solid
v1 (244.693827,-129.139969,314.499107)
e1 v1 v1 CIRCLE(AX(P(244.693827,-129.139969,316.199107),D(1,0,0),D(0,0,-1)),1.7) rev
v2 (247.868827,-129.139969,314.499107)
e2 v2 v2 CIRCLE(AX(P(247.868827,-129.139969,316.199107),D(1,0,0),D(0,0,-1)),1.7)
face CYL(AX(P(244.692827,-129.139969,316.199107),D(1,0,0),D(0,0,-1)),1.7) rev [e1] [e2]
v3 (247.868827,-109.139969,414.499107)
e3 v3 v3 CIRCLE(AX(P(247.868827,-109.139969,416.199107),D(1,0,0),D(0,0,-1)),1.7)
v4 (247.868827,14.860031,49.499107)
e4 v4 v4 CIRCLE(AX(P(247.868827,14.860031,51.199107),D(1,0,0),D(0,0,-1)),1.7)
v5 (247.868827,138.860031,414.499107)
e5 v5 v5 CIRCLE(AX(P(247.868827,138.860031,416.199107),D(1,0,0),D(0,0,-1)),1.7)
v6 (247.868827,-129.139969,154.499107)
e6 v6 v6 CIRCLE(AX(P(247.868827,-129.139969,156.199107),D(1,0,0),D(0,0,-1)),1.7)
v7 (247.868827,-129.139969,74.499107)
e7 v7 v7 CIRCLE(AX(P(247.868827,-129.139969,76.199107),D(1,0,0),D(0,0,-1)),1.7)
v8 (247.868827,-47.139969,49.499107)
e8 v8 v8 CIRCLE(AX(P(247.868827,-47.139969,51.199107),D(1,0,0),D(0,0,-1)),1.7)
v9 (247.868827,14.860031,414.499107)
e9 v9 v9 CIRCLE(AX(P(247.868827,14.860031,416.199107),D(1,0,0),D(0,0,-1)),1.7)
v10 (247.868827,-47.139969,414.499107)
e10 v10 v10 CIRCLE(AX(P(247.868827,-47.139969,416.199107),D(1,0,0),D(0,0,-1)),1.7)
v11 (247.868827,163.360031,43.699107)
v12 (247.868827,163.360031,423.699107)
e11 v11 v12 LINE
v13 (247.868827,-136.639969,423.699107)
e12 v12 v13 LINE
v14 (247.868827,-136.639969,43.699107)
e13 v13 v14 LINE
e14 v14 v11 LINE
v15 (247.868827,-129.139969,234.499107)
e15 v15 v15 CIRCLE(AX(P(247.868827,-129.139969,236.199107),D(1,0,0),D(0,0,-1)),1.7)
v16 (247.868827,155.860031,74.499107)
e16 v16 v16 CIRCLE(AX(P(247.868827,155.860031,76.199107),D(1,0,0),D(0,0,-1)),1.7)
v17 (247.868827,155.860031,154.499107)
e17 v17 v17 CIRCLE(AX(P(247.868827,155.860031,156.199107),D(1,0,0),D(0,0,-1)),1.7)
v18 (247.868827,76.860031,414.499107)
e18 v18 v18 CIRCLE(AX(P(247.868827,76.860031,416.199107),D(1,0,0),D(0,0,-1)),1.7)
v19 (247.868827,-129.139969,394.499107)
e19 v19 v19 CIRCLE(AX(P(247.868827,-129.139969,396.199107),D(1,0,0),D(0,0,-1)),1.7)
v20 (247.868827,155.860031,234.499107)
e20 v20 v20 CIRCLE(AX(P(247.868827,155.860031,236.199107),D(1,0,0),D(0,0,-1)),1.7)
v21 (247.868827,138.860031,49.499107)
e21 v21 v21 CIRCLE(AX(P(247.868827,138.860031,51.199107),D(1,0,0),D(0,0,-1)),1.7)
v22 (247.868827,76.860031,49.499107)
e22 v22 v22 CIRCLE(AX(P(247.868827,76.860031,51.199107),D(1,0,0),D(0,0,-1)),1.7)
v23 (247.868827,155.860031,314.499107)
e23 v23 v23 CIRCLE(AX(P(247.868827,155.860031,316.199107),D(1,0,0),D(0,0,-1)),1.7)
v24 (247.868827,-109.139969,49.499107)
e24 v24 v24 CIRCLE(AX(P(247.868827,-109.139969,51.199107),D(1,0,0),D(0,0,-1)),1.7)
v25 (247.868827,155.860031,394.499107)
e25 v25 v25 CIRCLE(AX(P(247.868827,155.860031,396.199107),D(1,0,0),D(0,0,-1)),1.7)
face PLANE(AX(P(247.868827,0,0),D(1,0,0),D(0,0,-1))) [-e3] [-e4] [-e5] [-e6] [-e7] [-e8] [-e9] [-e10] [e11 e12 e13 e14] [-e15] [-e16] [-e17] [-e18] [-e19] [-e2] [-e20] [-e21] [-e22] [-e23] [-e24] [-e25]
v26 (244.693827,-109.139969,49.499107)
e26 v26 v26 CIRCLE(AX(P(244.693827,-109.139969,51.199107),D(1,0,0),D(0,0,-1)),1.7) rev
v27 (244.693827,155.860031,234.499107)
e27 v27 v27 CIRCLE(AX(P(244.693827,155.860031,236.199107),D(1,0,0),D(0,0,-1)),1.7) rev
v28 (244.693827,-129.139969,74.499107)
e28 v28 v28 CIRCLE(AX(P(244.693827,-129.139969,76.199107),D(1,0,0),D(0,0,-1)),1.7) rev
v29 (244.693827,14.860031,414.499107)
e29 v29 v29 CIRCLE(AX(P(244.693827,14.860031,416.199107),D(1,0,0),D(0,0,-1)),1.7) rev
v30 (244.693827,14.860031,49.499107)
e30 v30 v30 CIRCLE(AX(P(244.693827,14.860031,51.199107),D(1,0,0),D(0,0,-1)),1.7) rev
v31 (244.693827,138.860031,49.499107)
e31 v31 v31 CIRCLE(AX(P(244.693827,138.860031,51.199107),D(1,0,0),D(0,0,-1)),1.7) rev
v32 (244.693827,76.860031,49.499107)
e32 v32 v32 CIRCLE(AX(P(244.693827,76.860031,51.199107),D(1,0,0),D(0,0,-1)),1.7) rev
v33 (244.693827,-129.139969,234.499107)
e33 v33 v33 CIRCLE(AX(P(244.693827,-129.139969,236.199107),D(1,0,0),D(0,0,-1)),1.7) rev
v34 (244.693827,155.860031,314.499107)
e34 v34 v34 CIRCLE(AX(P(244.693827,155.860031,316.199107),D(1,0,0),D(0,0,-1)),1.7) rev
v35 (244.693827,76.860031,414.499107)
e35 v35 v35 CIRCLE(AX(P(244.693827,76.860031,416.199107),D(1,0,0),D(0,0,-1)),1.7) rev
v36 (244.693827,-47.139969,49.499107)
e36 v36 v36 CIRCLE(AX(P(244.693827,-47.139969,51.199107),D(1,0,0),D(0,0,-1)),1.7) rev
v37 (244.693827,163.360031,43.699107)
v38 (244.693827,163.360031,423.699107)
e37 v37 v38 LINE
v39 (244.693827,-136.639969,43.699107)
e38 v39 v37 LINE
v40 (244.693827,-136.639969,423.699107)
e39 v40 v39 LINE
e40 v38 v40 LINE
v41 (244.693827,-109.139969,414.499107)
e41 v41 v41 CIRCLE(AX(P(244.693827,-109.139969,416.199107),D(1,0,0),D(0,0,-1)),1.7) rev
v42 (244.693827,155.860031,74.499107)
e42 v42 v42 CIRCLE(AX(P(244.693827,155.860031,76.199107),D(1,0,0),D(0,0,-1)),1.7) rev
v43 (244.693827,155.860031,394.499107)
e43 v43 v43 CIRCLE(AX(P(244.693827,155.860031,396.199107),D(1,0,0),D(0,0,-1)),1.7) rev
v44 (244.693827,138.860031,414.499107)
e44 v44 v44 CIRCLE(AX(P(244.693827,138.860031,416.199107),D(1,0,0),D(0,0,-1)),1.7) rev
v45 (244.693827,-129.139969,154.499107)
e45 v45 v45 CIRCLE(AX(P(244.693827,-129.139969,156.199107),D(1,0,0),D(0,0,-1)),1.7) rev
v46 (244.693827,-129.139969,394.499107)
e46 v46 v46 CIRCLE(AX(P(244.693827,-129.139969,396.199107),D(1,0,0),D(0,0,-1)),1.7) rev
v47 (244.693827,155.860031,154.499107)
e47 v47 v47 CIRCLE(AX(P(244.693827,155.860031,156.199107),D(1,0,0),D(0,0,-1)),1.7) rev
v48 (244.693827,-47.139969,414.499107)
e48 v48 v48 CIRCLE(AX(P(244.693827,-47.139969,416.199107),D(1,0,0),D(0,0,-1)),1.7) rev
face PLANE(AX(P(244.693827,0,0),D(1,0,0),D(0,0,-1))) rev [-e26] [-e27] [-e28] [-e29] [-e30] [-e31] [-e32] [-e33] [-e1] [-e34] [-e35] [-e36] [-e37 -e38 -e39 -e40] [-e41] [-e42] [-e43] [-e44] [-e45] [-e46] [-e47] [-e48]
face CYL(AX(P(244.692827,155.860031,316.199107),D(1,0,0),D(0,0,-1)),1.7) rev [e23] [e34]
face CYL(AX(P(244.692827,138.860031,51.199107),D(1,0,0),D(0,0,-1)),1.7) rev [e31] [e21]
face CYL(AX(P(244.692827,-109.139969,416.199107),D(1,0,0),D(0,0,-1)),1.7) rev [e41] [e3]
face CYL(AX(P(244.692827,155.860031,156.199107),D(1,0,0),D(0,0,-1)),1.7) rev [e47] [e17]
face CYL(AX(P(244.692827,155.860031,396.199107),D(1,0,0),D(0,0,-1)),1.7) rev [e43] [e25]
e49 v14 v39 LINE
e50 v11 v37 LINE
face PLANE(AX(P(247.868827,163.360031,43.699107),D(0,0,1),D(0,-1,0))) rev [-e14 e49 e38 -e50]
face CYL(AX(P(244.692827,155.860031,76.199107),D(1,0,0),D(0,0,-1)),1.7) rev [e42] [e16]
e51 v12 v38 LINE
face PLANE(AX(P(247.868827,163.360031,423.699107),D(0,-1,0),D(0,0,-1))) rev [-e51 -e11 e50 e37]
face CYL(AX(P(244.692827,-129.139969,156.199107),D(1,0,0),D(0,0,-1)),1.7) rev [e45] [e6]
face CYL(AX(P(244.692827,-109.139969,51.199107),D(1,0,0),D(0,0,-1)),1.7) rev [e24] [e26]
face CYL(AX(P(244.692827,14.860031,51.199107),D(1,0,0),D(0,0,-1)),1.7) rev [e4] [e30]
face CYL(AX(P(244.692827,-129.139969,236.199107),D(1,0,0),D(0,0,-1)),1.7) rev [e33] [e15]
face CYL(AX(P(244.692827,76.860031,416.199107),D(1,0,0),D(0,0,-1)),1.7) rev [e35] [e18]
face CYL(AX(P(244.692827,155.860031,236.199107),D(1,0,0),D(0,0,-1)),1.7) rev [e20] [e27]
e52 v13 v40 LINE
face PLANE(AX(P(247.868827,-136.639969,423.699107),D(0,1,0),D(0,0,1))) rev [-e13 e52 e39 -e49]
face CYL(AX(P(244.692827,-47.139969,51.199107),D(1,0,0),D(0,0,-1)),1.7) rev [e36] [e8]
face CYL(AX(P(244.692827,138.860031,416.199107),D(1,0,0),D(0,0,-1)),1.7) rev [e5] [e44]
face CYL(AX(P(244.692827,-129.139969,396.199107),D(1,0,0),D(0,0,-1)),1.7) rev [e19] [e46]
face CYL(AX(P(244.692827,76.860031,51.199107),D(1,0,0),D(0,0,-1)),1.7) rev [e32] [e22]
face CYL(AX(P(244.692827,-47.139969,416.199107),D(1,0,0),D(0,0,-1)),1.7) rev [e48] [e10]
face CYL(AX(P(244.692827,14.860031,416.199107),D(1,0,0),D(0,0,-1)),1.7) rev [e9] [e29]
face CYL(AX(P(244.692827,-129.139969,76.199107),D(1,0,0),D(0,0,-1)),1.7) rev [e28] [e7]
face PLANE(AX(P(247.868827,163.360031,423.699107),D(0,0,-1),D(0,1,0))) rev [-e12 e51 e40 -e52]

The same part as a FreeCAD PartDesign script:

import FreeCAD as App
import Part
import Sketcher
Q = App.Units.Quantity

doc = App.newDocument("Part")
body = doc.addObject("PartDesign::Body", "Body")

# Sketch on YZ plane
sketch1 = body.newObject("Sketcher::SketchObject", "Sketch")
sketch1.AttachmentSupport = (doc.getObject("YZ_Plane"), [""])
sketch1.MapMode = "FlatFace"
sketch1.AttachmentOffset = App.Placement(App.Vector(0, 0, 244.693827), App.Rotation())
sketch1.addGeometry([
    Part.LineSegment(App.Vector(163.360031, 423.699107, 0), App.Vector(-136.639969, 423.699107, 0)),
    Part.LineSegment(App.Vector(-136.639969, 423.699107, 0), App.Vector(-136.639969, 43.699107, 0)),
    Part.LineSegment(App.Vector(-136.639969, 43.699107, 0), App.Vector(163.360031, 43.699107, 0)),
    Part.LineSegment(App.Vector(163.360031, 43.699107, 0), App.Vector(163.360031, 423.699107, 0)),
], False)
sketch1.addConstraint([
    Sketcher.Constraint("Coincident", 0, 2, 1, 1),
    Sketcher.Constraint("Coincident", 1, 2, 2, 1),
    Sketcher.Constraint("Coincident", 2, 2, 3, 1),
    Sketcher.Constraint("Coincident", 3, 2, 0, 1),
    Sketcher.Constraint("Horizontal", 0),
    Sketcher.Constraint("Vertical", 1),
    Sketcher.Constraint("Horizontal", 2),
    Sketcher.Constraint("Vertical", 3),
    Sketcher.Constraint("DistanceX", 0, 2, 0, 1, Q("300 mm")),
    Sketcher.Constraint("DistanceY", 1, 2, 1, 1, Q("380 mm")),
    Sketcher.Constraint("DistanceX", 0, 2, -1, 1, Q("136.639969 mm")),
    Sketcher.Constraint("DistanceY", -1, 1, 0, 2, Q("423.699107 mm")),
])
pad1 = body.newObject("PartDesign::Pad", "Pad")
pad1.Profile = sketch1
pad1.Length = 3.175

# Sketch on YZ plane
sketch2 = body.newObject("Sketcher::SketchObject", "Sketch001")
sketch2.AttachmentSupport = (doc.getObject("YZ_Plane"), [""])
sketch2.MapMode = "FlatFace"
sketch2.AttachmentOffset = App.Placement(App.Vector(0, 0, 247.868827), App.Rotation())
sketch2.addGeometry(Part.Circle(App.Vector(155.860031, 396.199107, 0), App.Vector(0, 0, 1), 1.7), False)
sketch2.addConstraint([
    Sketcher.Constraint("Diameter", 0, Q("3.4 mm")),
    Sketcher.Constraint("DistanceX", -1, 1, 0, 3, Q("155.860031 mm")),
    Sketcher.Constraint("DistanceY", -1, 1, 0, 3, Q("396.199107 mm")),
])
pocket1 = body.newObject("PartDesign::Pocket", "Pocket")
pocket1.Profile = sketch2
pocket1.Type = "UpToFirst"

# Sketch on YZ plane
sketch3 = body.newObject("Sketcher::SketchObject", "Sketch002")
sketch3.AttachmentSupport = (doc.getObject("YZ_Plane"), [""])
sketch3.MapMode = "FlatFace"
sketch3.AttachmentOffset = App.Placement(App.Vector(0, 0, 247.868827), App.Rotation())
sketch3.addGeometry(Part.Circle(App.Vector(-129.139969, 396.199107, 0), App.Vector(0, 0, 1), 1.7), False)
sketch3.addConstraint([
    Sketcher.Constraint("Diameter", 0, Q("3.4 mm")),
    Sketcher.Constraint("DistanceX", 0, 3, -1, 1, Q("129.139969 mm")),
    Sketcher.Constraint("DistanceY", -1, 1, 0, 3, Q("396.199107 mm")),
])
pocket2 = body.newObject("PartDesign::Pocket", "Pocket001")
pocket2.Profile = sketch3
pocket2.Type = "UpToFirst"

# Sketch on YZ plane
sketch4 = body.newObject("Sketcher::SketchObject", "Sketch003")
sketch4.AttachmentSupport = (doc.getObject("YZ_Plane"), [""])
sketch4.MapMode = "FlatFace"
sketch4.AttachmentOffset = App.Placement(App.Vector(0, 0, 247.868827), App.Rotation())
sketch4.addGeometry(Part.Circle(App.Vector(155.860031, 316.199107, 0), App.Vector(0, 0, 1), 1.7), False)
sketch4.addConstraint([
    Sketcher.Constraint("Diameter", 0, Q("3.4 mm")),
    Sketcher.Constraint("DistanceX", -1, 1, 0, 3, Q("155.860031 mm")),
    Sketcher.Constraint("DistanceY", -1, 1, 0, 3, Q("316.199107 mm")),
])
pocket3 = body.newObject("PartDesign::Pocket", "Pocket002")
pocket3.Profile = sketch4
pocket3.Type = "UpToFirst"

# Sketch on YZ plane
sketch5 = body.newObject("Sketcher::SketchObject", "Sketch004")
sketch5.AttachmentSupport = (doc.getObject("YZ_Plane"), [""])
sketch5.MapMode = "FlatFace"
sketch5.AttachmentOffset = App.Placement(App.Vector(0, 0, 247.868827), App.Rotation())
sketch5.addGeometry(Part.Circle(App.Vector(-129.139969, 316.199107, 0), App.Vector(0, 0, 1), 1.7), False)
sketch5.addConstraint([
    Sketcher.Constraint("Diameter", 0, Q("3.4 mm")),
    Sketcher.Constraint("DistanceX", 0, 3, -1, 1, Q("129.139969 mm")),
    Sketcher.Constraint("DistanceY", -1, 1, 0, 3, Q("316.199107 mm")),
])
pocket4 = body.newObject("PartDesign::Pocket", "Pocket003")
pocket4.Profile = sketch5
pocket4.Type = "UpToFirst"

# Sketch on YZ plane
sketch6 = body.newObject("Sketcher::SketchObject", "Sketch005")
sketch6.AttachmentSupport = (doc.getObject("YZ_Plane"), [""])
sketch6.MapMode = "FlatFace"
sketch6.AttachmentOffset = App.Placement(App.Vector(0, 0, 247.868827), App.Rotation())
sketch6.addGeometry(Part.Circle(App.Vector(155.860031, 236.199107, 0), App.Vector(0, 0, 1), 1.7), False)
sketch6.addConstraint([
    Sketcher.Constraint("Diameter", 0, Q("3.4 mm")),
    Sketcher.Constraint("DistanceX", -1, 1, 0, 3, Q("155.860031 mm")),
    Sketcher.Constraint("DistanceY", -1, 1, 0, 3, Q("236.199107 mm")),
])
pocket5 = body.newObject("PartDesign::Pocket", "Pocket004")
pocket5.Profile = sketch6
pocket5.Type = "UpToFirst"

# Sketch on YZ plane
sketch7 = body.newObject("Sketcher::SketchObject", "Sketch006")
sketch7.AttachmentSupport = (doc.getObject("YZ_Plane"), [""])
sketch7.MapMode = "FlatFace"
sketch7.AttachmentOffset = App.Placement(App.Vector(0, 0, 247.868827), App.Rotation())
sketch7.addGeometry(Part.Circle(App.Vector(-129.139969, 236.199107, 0), App.Vector(0, 0, 1), 1.7), False)
sketch7.addConstraint([
    Sketcher.Constraint("Diameter", 0, Q("3.4 mm")),
    Sketcher.Constraint("DistanceX", 0, 3, -1, 1, Q("129.139969 mm")),
    Sketcher.Constraint("DistanceY", -1, 1, 0, 3, Q("236.199107 mm")),
])
pocket6 = body.newObject("PartDesign::Pocket", "Pocket005")
pocket6.Profile = sketch7
pocket6.Type = "UpToFirst"

# Sketch on YZ plane
sketch8 = body.newObject("Sketcher::SketchObject", "Sketch007")
sketch8.AttachmentSupport = (doc.getObject("YZ_Plane"), [""])
sketch8.MapMode = "FlatFace"
sketch8.AttachmentOffset = App.Placement(App.Vector(0, 0, 247.868827), App.Rotation())
sketch8.addGeometry(Part.Circle(App.Vector(155.860031, 156.199107, 0), App.Vector(0, 0, 1), 1.7), False)
sketch8.addConstraint([
    Sketcher.Constraint("Diameter", 0, Q("3.4 mm")),
    Sketcher.Constraint("DistanceX", -1, 1, 0, 3, Q("155.860031 mm")),
    Sketcher.Constraint("DistanceY", -1, 1, 0, 3, Q("156.199107 mm")),
])
pocket7 = body.newObject("PartDesign::Pocket", "Pocket006")
pocket7.Profile = sketch8
pocket7.Type = "UpToFirst"

# Sketch on YZ plane
sketch9 = body.newObject("Sketcher::SketchObject", "Sketch008")
sketch9.AttachmentSupport = (doc.getObject("YZ_Plane"), [""])
sketch9.MapMode = "FlatFace"
sketch9.AttachmentOffset = App.Placement(App.Vector(0, 0, 247.868827), App.Rotation())
sketch9.addGeometry(Part.Circle(App.Vector(-129.139969, 156.199107, 0), App.Vector(0, 0, 1), 1.7), False)
sketch9.addConstraint([
    Sketcher.Constraint("Diameter", 0, Q("3.4 mm")),
    Sketcher.Constraint("DistanceX", 0, 3, -1, 1, Q("129.139969 mm")),
    Sketcher.Constraint("DistanceY", -1, 1, 0, 3, Q("156.199107 mm")),
])
pocket8 = body.newObject("PartDesign::Pocket", "Pocket007")
pocket8.Profile = sketch9
pocket8.Type = "UpToFirst"

# Sketch on YZ plane
sketch10 = body.newObject("Sketcher::SketchObject", "Sketch009")
sketch10.AttachmentSupport = (doc.getObject("YZ_Plane"), [""])
sketch10.MapMode = "FlatFace"
sketch10.AttachmentOffset = App.Placement(App.Vector(0, 0, 247.868827), App.Rotation())
sketch10.addGeometry(Part.Circle(App.Vector(155.860031, 76.199107, 0), App.Vector(0, 0, 1), 1.7), False)
sketch10.addConstraint([
    Sketcher.Constraint("Diameter", 0, Q("3.4 mm")),
    Sketcher.Constraint("DistanceX", -1, 1, 0, 3, Q("155.860031 mm")),
    Sketcher.Constraint("DistanceY", -1, 1, 0, 3, Q("76.199107 mm")),
])
pocket9 = body.newObject("PartDesign::Pocket", "Pocket008")
pocket9.Profile = sketch10
pocket9.Type = "UpToFirst"

# Sketch on YZ plane
sketch11 = body.newObject("Sketcher::SketchObject", "Sketch010")
sketch11.AttachmentSupport = (doc.getObject("YZ_Plane"), [""])
sketch11.MapMode = "FlatFace"
sketch11.AttachmentOffset = App.Placement(App.Vector(0, 0, 247.868827), App.Rotation())
sketch11.addGeometry(Part.Circle(App.Vector(-129.139969, 76.199107, 0), App.Vector(0, 0, 1), 1.7), False)
sketch11.addConstraint([
    Sketcher.Constraint("Diameter", 0, Q("3.4 mm")),
    Sketcher.Constraint("DistanceX", 0, 3, -1, 1, Q("129.139969 mm")),
    Sketcher.Constraint("DistanceY", -1, 1, 0, 3, Q("76.199107 mm")),
])
pocket10 = body.newObject("PartDesign::Pocket", "Pocket009")
pocket10.Profile = sketch11
pocket10.Type = "UpToFirst"

# Sketch on YZ plane
sketch12 = body.newObject("Sketcher::SketchObject", "Sketch011")
sketch12.AttachmentSupport = (doc.getObject("YZ_Plane"), [""])
sketch12.MapMode = "FlatFace"
sketch12.AttachmentOffset = App.Placement(App.Vector(0, 0, 247.868827), App.Rotation())
sketch12.addGeometry(Part.Circle(App.Vector(-109.139969, 416.199107, 0), App.Vector(0, 0, 1), 1.7), False)
sketch12.addConstraint([
    Sketcher.Constraint("Diameter", 0, Q("3.4 mm")),
    Sketcher.Constraint("DistanceX", 0, 3, -1, 1, Q("109.139969 mm")),
    Sketcher.Constraint("DistanceY", -1, 1, 0, 3, Q("416.199107 mm")),
])
pocket11 = body.newObject("PartDesign::Pocket", "Pocket010")
pocket11.Profile = sketch12
pocket11.Type = "UpToFirst"

# Sketch on YZ plane
sketch13 = body.newObject("Sketcher::SketchObject", "Sketch012")
sketch13.AttachmentSupport = (doc.getObject("YZ_Plane"), [""])
sketch13.MapMode = "FlatFace"
sketch13.AttachmentOffset = App.Placement(App.Vector(0, 0, 247.868827), App.Rotation())
sketch13.addGeometry(Part.Circle(App.Vector(-109.139969, 51.199107, 0), App.Vector(0, 0, 1), 1.7), False)
sketch13.addConstraint([
    Sketcher.Constraint("Diameter", 0, Q("3.4 mm")),
    Sketcher.Constraint("DistanceX", 0, 3, -1, 1, Q("109.139969 mm")),
    Sketcher.Constraint("DistanceY", -1, 1, 0, 3, Q("51.199107 mm")),
])
pocket12 = body.newObject("PartDesign::Pocket", "Pocket011")
pocket12.Profile = sketch13
pocket12.Type = "UpToFirst"

# Sketch on YZ plane
sketch14 = body.newObject("Sketcher::SketchObject", "Sketch013")
sketch14.AttachmentSupport = (doc.getObject("YZ_Plane"), [""])
sketch14.MapMode = "FlatFace"
sketch14.AttachmentOffset = App.Placement(App.Vector(0, 0, 247.868827), App.Rotation())
sketch14.addGeometry(Part.Circle(App.Vector(-47.139969, 51.199107, 0), App.Vector(0, 0, 1), 1.7), False)
sketch14.addConstraint([
    Sketcher.Constraint("Diameter", 0, Q("3.4 mm")),
    Sketcher.Constraint("DistanceX", 0, 3, -1, 1, Q("47.139969 mm")),
    Sketcher.Constraint("DistanceY", -1, 1, 0, 3, Q("51.199107 mm")),
])
pocket13 = body.newObject("PartDesign::Pocket", "Pocket012")
pocket13.Profile = sketch14
pocket13.Type = "UpToFirst"

# Sketch on YZ plane
sketch15 = body.newObject("Sketcher::SketchObject", "Sketch014")
sketch15.AttachmentSupport = (doc.getObject("YZ_Plane"), [""])
sketch15.MapMode = "FlatFace"
sketch15.AttachmentOffset = App.Placement(App.Vector(0, 0, 247.868827), App.Rotation())
sketch15.addGeometry(Part.Circle(App.Vector(-47.139969, 416.199107, 0), App.Vector(0, 0, 1), 1.7), False)
sketch15.addConstraint([
    Sketcher.Constraint("Diameter", 0, Q("3.4 mm")),
    Sketcher.Constraint("DistanceX", 0, 3, -1, 1, Q("47.139969 mm")),
    Sketcher.Constraint("DistanceY", -1, 1, 0, 3, Q("416.199107 mm")),
])
pocket14 = body.newObject("PartDesign::Pocket", "Pocket013")
pocket14.Profile = sketch15
pocket14.Type = "UpToFirst"

# Sketch on YZ plane
sketch16 = body.newObject("Sketcher::SketchObject", "Sketch015")
sketch16.AttachmentSupport = (doc.getObject("YZ_Plane"), [""])
sketch16.MapMode = "FlatFace"
sketch16.AttachmentOffset = App.Placement(App.Vector(0, 0, 247.868827), App.Rotation())
sketch16.addGeometry(Part.Circle(App.Vector(14.860031, 51.199107, 0), App.Vector(0, 0, 1), 1.7), False)
sketch16.addConstraint([
    Sketcher.Constraint("Diameter", 0, Q("3.4 mm")),
    Sketcher.Constraint("DistanceX", -1, 1, 0, 3, Q("14.860031 mm")),
    Sketcher.Constraint("DistanceY", -1, 1, 0, 3, Q("51.199107 mm")),
])
pocket15 = body.newObject("PartDesign::Pocket", "Pocket014")
pocket15.Profile = sketch16
pocket15.Type = "UpToFirst"

# Sketch on YZ plane
sketch17 = body.newObject("Sketcher::SketchObject", "Sketch016")
sketch17.AttachmentSupport = (doc.getObject("YZ_Plane"), [""])
sketch17.MapMode = "FlatFace"
sketch17.AttachmentOffset = App.Placement(App.Vector(0, 0, 247.868827), App.Rotation())
sketch17.addGeometry(Part.Circle(App.Vector(14.860031, 416.199107, 0), App.Vector(0, 0, 1), 1.7), False)
sketch17.addConstraint([
    Sketcher.Constraint("Diameter", 0, Q("3.4 mm")),
    Sketcher.Constraint("DistanceX", -1, 1, 0, 3, Q("14.860031 mm")),
    Sketcher.Constraint("DistanceY", -1, 1, 0, 3, Q("416.199107 mm")),
])
pocket16 = body.newObject("PartDesign::Pocket", "Pocket015")
pocket16.Profile = sketch17
pocket16.Type = "UpToFirst"

# Sketch on YZ plane
sketch18 = body.newObject("Sketcher::SketchObject", "Sketch017")
sketch18.AttachmentSupport = (doc.getObject("YZ_Plane"), [""])
sketch18.MapMode = "FlatFace"
sketch18.AttachmentOffset = App.Placement(App.Vector(0, 0, 247.868827), App.Rotation())
sketch18.addGeometry(Part.Circle(App.Vector(76.860031, 51.199107, 0), App.Vector(0, 0, 1), 1.7), False)
sketch18.addConstraint([
    Sketcher.Constraint("Diameter", 0, Q("3.4 mm")),
    Sketcher.Constraint("DistanceX", -1, 1, 0, 3, Q("76.860031 mm")),
    Sketcher.Constraint("DistanceY", -1, 1, 0, 3, Q("51.199107 mm")),
])
pocket17 = body.newObject("PartDesign::Pocket", "Pocket016")
pocket17.Profile = sketch18
pocket17.Type = "UpToFirst"

# Sketch on YZ plane
sketch19 = body.newObject("Sketcher::SketchObject", "Sketch018")
sketch19.AttachmentSupport = (doc.getObject("YZ_Plane"), [""])
sketch19.MapMode = "FlatFace"
sketch19.AttachmentOffset = App.Placement(App.Vector(0, 0, 247.868827), App.Rotation())
sketch19.addGeometry(Part.Circle(App.Vector(76.860031, 416.199107, 0), App.Vector(0, 0, 1), 1.7), False)
sketch19.addConstraint([
    Sketcher.Constraint("Diameter", 0, Q("3.4 mm")),
    Sketcher.Constraint("DistanceX", -1, 1, 0, 3, Q("76.860031 mm")),
    Sketcher.Constraint("DistanceY", -1, 1, 0, 3, Q("416.199107 mm")),
])
pocket18 = body.newObject("PartDesign::Pocket", "Pocket017")
pocket18.Profile = sketch19
pocket18.Type = "UpToFirst"

# Sketch on YZ plane
sketch20 = body.newObject("Sketcher::SketchObject", "Sketch019")
sketch20.AttachmentSupport = (doc.getObject("YZ_Plane"), [""])
sketch20.MapMode = "FlatFace"
sketch20.AttachmentOffset = App.Placement(App.Vector(0, 0, 247.868827), App.Rotation())
sketch20.addGeometry(Part.Circle(App.Vector(138.860031, 51.199107, 0), App.Vector(0, 0, 1), 1.7), False)
sketch20.addConstraint([
    Sketcher.Constraint("Diameter", 0, Q("3.4 mm")),
    Sketcher.Constraint("DistanceX", -1, 1, 0, 3, Q("138.860031 mm")),
    Sketcher.Constraint("DistanceY", -1, 1, 0, 3, Q("51.199107 mm")),
])
pocket19 = body.newObject("PartDesign::Pocket", "Pocket018")
pocket19.Profile = sketch20
pocket19.Type = "UpToFirst"

# Sketch on YZ plane
sketch21 = body.newObject("Sketcher::SketchObject", "Sketch020")
sketch21.AttachmentSupport = (doc.getObject("YZ_Plane"), [""])
sketch21.MapMode = "FlatFace"
sketch21.AttachmentOffset = App.Placement(App.Vector(0, 0, 247.868827), App.Rotation())
sketch21.addGeometry(Part.Circle(App.Vector(138.860031, 416.199107, 0), App.Vector(0, 0, 1), 1.7), False)
sketch21.addConstraint([
    Sketcher.Constraint("Diameter", 0, Q("3.4 mm")),
    Sketcher.Constraint("DistanceX", -1, 1, 0, 3, Q("138.860031 mm")),
    Sketcher.Constraint("DistanceY", -1, 1, 0, 3, Q("416.199107 mm")),
])
pocket20 = body.newObject("PartDesign::Pocket", "Pocket019")
pocket20.Profile = sketch21
pocket20.Type = "UpToFirst"

doc.recompute()
